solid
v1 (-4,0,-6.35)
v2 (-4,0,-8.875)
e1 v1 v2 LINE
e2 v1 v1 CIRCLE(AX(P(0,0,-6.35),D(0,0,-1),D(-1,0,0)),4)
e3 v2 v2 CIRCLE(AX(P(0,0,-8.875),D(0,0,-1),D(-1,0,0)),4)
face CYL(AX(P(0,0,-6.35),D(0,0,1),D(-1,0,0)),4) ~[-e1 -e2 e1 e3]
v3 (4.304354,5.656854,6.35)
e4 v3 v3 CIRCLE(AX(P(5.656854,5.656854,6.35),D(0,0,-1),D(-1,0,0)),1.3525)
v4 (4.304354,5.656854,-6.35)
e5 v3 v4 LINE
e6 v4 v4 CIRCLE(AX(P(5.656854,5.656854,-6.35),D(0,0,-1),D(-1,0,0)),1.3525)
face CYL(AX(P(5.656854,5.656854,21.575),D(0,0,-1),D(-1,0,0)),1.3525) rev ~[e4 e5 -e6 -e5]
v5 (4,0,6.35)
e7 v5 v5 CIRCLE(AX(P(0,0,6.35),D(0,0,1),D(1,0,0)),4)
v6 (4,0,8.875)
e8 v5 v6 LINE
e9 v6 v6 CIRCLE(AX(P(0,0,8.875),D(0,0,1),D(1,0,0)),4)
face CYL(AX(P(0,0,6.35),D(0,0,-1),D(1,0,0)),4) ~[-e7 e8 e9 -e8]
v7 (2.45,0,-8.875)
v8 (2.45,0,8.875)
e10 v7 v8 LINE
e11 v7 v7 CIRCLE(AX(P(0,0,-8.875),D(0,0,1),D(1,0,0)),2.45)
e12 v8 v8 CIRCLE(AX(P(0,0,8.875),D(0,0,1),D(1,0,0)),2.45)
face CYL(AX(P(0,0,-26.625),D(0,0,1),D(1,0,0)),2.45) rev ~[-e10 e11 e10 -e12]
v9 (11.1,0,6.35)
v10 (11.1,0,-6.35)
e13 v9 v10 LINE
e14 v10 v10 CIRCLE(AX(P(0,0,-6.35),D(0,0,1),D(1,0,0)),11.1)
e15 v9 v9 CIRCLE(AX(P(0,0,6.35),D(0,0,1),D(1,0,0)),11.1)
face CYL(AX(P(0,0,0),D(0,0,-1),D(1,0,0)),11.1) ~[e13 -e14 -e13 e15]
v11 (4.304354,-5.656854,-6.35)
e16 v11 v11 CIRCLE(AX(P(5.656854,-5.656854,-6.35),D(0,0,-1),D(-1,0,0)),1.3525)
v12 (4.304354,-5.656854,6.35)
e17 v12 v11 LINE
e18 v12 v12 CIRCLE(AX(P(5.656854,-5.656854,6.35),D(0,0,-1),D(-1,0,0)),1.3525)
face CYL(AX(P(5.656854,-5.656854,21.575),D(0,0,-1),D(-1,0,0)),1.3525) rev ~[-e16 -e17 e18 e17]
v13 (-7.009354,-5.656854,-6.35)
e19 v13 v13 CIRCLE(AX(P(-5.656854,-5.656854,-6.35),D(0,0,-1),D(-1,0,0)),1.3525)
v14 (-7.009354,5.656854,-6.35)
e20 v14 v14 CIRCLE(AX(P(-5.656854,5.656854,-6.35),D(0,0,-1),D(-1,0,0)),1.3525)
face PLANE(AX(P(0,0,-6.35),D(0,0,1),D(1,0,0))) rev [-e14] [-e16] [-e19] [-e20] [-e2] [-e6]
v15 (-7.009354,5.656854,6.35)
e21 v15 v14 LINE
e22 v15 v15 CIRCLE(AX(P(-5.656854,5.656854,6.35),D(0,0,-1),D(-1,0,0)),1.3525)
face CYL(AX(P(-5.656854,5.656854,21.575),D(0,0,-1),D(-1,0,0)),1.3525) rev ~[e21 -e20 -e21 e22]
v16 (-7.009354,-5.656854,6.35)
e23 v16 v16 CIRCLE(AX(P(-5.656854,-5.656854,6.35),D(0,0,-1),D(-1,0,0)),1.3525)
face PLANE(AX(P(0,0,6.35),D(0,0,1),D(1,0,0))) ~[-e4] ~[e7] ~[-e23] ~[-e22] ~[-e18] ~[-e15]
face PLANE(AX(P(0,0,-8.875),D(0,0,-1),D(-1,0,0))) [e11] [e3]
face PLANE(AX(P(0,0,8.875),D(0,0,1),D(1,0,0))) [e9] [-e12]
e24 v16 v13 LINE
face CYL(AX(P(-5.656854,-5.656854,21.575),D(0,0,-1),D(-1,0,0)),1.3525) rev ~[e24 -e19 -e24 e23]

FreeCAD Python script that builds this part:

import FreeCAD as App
import Part
import Sketcher
from FreeCAD import Vector

doc = App.newDocument("Part")
params = doc.addObject("Spreadsheet::Sheet", "Params")
for row, (alias, value) in enumerate([
    ("sketch1_width", "11.1 mm"),
    ("sketch1_height", "12.7 mm"),
    ("revolution_angle", "360 deg"),
    ("sketch2_diameter", "8 mm"),
    ("pad1_length", "2.525 mm"),
    ("sketch3_diameter", "8 mm"),
    ("pad2_length", "2.525 mm"),
    ("hole_diameter", "2.705 mm"),
    ("hole_depth", "15.225 mm"),
    ("sketch5_diameter", "4.9 mm"),
    ("hole2_diameter", "4.9 mm"),
    ("hole2_depth", "17.75 mm"),
], start=1):
    params.set(f"A{row}", alias)
    params.set(f"B{row}", "=" + value)
    params.setAlias(f"B{row}", alias)

body = doc.addObject("PartDesign::Body", "Body")

sketch1 = body.newObject("Sketcher::SketchObject", "Sketch")
sketch1.AttachmentSupport = (doc.getObject("XZ_Plane"), [""])
sketch1.MapMode = "FlatFace"
sketch1.addGeometry(Part.LineSegment(Vector(0, -6.35, 0), Vector(0, 6.35, 0)), False)
sketch1.addGeometry(Part.LineSegment(Vector(0, 6.35, 0), Vector(11.1, 6.35, 0)), False)
sketch1.addGeometry(Part.LineSegment(Vector(11.1, 6.35, 0), Vector(11.1, -6.35, 0)), False)
sketch1.addGeometry(Part.LineSegment(Vector(11.1, -6.35, 0), Vector(0, -6.35, 0)), False)
sketch1.addConstraint(Sketcher.Constraint("Coincident", 0, 2, 1, 1))
sketch1.addConstraint(Sketcher.Constraint("Coincident", 1, 2, 2, 1))
sketch1.addConstraint(Sketcher.Constraint("Coincident", 2, 2, 3, 1))
sketch1.addConstraint(Sketcher.Constraint("Coincident", 3, 2, 0, 1))
sketch1.addConstraint(Sketcher.Constraint("Vertical", 0))
sketch1.addConstraint(Sketcher.Constraint("Horizontal", 1))
sketch1.addConstraint(Sketcher.Constraint("Vertical", 2))
sketch1.addConstraint(Sketcher.Constraint("Horizontal", 3))
sketch1.addConstraint(Sketcher.Constraint("Symmetric", 0, 2, 3, 2, -1, 1))
sketch1.addConstraint(Sketcher.Constraint("DistanceX", 1, 1, 1, 2, 11.1))
sketch1.addConstraint(Sketcher.Constraint("DistanceY", 0, 1, 0, 2, 12.7))
sketch1.setExpression("Constraints[9]", "Params.sketch1_width")
sketch1.setExpression("Constraints[10]", "Params.sketch1_height")
revolution = body.newObject("PartDesign::Revolution", "Revolution")
revolution.Profile = sketch1
revolution.ReferenceAxis = (sketch1, ["V_Axis"])
revolution.setExpression("Angle", "Params.revolution_angle")

sketch2 = body.newObject("Sketcher::SketchObject", "Sketch001")
sketch2.AttachmentSupport = (doc.getObject("XY_Plane"), [""])
sketch2.MapMode = "FlatFace"
sketch2.AttachmentOffset = App.Placement(Vector(0, 0, -6.35), App.Rotation())
sketch2.addGeometry(Part.Circle(Vector(0, 0, 0), Vector(0, 0, 1), 4), False)
sketch2.addConstraint(Sketcher.Constraint("Coincident", 0, 3, -1, 1))
sketch2.addConstraint(Sketcher.Constraint("Diameter", 0, 8.0))
sketch2.setExpression("Constraints[1]", "Params.sketch2_diameter")
pad1 = body.newObject("PartDesign::Pad", "Pad")
pad1.Profile = sketch2
pad1.setExpression("Length", "Params.pad1_length")
pad1.Reversed = True

sketch3 = body.newObject("Sketcher::SketchObject", "Sketch002")
sketch3.AttachmentSupport = (doc.getObject("XY_Plane"), [""])
sketch3.MapMode = "FlatFace"
sketch3.AttachmentOffset = App.Placement(Vector(0, 0, 6.35), App.Rotation())
sketch3.addGeometry(Part.Circle(Vector(0, 0, 0), Vector(0, 0, 1), 4), False)
sketch3.addConstraint(Sketcher.Constraint("Coincident", 0, 3, -1, 1))
sketch3.addConstraint(Sketcher.Constraint("Diameter", 0, 8.0))
sketch3.setExpression("Constraints[1]", "Params.sketch3_diameter")
pad2 = body.newObject("PartDesign::Pad", "Pad001")
pad2.Profile = sketch3
pad2.setExpression("Length", "Params.pad2_length")

sketch4 = body.newObject("Sketcher::SketchObject", "Sketch003")
sketch4.AttachmentSupport = (doc.getObject("XY_Plane"), [""])
sketch4.MapMode = "FlatFace"
sketch4.AttachmentOffset = App.Placement(Vector(0, 0, 6.35), App.Rotation())
sketch4.addGeometry(Part.Circle(Vector(5.656854, 5.656854, 0), Vector(0, 0, 1), 1.3525), False)
sketch4.addGeometry(Part.Circle(Vector(-5.656854, 5.656854, 0), Vector(0, 0, 1), 1.3525), False)
sketch4.addGeometry(Part.Circle(Vector(-5.656854, -5.656854, 0), Vector(0, 0, 1), 1.3525), False)
sketch4.addGeometry(Part.Circle(Vector(5.656854, -5.656854, 0), Vector(0, 0, 1), 1.3525), False)
sketch4.addConstraint(Sketcher.Constraint("Equal", 0, 1))
sketch4.addConstraint(Sketcher.Constraint("Equal", 1, 2))
sketch4.addConstraint(Sketcher.Constraint("Equal", 2, 3))
sketch4.addConstraint(Sketcher.Constraint("Symmetric", 0, 3, 2, 3, -1, 1))
sketch4.addConstraint(Sketcher.Constraint("Symmetric", 1, 3, 3, 3, -1, 1))
sketch4.addConstraint(Sketcher.Constraint("Symmetric", 0, 3, 1, 3, -2))
sketch4.addConstraint(Sketcher.Constraint("Diameter", 0, 2.705))
sketch4.addConstraint(Sketcher.Constraint("DistanceX", 1, 3, 0, 3, 11.313708))
sketch4.addConstraint(Sketcher.Constraint("DistanceY", 2, 3, 1, 3, 11.313708))
doc.recompute()
hole = body.newObject("PartDesign::Hole", "Hole")
hole.Profile = sketch4
hole.ThreadType = "None"
hole.setExpression("Diameter", "Params.hole_diameter")
hole.DepthType = "Dimension"
hole.setExpression("Depth", "Params.hole_depth")
hole.DrillPoint = "Flat"

sketch5 = body.newObject("Sketcher::SketchObject", "Sketch004")
sketch5.AttachmentSupport = (doc.getObject("XY_Plane"), [""])
sketch5.MapMode = "FlatFace"
sketch5.AttachmentOffset = App.Placement(Vector(0, 0, -8.875), App.Rotation())
sketch5.addGeometry(Part.Circle(Vector(0, 0, 0), Vector(0, 0, 1), 2.45), False)
sketch5.addConstraint(Sketcher.Constraint("Coincident", 0, 3, -1, 1))
sketch5.addConstraint(Sketcher.Constraint("Diameter", 0, 4.9))
sketch5.setExpression("Constraints[1]", "Params.sketch5_diameter")
doc.recompute()
hole2 = body.newObject("PartDesign::Hole", "Hole001")
hole2.Profile = sketch5
hole2.ThreadType = "None"
hole2.setExpression("Diameter", "Params.hole2_diameter")
hole2.DepthType = "Dimension"
hole2.setExpression("Depth", "Params.hole2_depth")
hole2.DrillPoint = "Flat"
hole2.Reversed = True

doc.recompute()
